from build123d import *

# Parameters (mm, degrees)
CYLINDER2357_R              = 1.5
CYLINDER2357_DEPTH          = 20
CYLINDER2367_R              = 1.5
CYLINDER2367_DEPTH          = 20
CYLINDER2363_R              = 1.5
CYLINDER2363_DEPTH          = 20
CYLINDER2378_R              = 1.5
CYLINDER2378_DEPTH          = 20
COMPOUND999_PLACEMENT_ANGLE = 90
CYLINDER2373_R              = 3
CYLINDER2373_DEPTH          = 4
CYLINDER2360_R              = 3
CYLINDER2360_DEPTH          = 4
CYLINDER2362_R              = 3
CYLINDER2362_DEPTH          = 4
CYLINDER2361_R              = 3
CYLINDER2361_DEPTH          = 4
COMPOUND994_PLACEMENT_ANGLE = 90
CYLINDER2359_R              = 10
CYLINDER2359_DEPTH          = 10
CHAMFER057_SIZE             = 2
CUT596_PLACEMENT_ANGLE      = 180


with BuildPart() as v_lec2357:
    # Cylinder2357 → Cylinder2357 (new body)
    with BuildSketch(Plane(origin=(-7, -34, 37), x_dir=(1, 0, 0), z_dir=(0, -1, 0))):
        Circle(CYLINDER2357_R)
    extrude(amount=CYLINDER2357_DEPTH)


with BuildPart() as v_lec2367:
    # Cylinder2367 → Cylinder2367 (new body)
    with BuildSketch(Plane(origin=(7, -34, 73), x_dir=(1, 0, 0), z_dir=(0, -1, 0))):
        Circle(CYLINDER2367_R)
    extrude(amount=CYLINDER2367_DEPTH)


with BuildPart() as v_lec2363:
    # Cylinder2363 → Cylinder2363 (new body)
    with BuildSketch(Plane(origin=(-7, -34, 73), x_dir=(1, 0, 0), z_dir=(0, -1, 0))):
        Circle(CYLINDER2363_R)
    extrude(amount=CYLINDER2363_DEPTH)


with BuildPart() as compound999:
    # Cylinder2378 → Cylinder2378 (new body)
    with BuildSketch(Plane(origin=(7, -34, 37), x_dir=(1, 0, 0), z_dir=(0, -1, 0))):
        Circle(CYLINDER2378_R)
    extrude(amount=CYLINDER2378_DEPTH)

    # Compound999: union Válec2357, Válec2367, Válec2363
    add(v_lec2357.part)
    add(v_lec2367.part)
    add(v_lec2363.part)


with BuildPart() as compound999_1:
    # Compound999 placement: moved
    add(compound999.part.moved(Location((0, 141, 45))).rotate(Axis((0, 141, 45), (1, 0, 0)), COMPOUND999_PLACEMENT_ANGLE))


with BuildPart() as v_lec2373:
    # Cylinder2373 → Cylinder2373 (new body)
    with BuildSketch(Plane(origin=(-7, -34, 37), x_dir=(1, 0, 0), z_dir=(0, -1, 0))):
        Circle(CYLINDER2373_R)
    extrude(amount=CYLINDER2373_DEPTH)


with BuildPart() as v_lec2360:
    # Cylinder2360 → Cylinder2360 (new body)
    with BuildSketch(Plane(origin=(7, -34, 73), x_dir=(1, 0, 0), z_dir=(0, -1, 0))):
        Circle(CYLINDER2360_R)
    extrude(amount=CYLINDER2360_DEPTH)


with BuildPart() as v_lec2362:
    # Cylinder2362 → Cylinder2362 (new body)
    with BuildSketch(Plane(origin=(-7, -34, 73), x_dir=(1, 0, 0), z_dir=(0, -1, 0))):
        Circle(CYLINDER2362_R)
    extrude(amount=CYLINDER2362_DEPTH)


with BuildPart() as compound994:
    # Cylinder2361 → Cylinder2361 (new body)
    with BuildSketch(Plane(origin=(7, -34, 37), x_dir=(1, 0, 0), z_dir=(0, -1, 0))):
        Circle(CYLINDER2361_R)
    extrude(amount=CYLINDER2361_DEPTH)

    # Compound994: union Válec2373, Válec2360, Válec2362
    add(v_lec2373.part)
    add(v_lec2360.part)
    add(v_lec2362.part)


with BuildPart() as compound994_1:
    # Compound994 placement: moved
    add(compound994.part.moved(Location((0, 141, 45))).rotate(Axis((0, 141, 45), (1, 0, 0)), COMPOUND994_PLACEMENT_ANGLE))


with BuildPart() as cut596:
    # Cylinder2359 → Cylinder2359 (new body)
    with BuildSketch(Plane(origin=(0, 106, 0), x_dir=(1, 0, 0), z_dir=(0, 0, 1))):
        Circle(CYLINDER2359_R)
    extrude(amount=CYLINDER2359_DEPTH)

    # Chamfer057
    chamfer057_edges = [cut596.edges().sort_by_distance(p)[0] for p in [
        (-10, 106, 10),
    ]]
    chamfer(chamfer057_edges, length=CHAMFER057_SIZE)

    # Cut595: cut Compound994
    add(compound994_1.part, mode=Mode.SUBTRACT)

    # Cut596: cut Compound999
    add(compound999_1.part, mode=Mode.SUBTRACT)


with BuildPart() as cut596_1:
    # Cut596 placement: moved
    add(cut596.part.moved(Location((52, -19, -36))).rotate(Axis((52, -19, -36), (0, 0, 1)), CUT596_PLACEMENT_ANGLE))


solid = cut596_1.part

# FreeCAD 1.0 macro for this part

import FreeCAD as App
import Part
import Sketcher

V = App.Vector


def edges_at(feature, points):
    """Names of the edges that pass closest to the given points."""
    edges = feature.Shape.Edges
    near = lambda p: min(range(len(edges)), key=lambda i: edges[i].distToShape(Part.Vertex(*p))[0])
    return sorted({f"Edge{near(p) + 1}" for p in points})

doc = App.newDocument("Part")
body = doc.addObject("PartDesign::Body", "Body")

sketch1 = body.newObject("Sketcher::SketchObject", "Sketch")
sketch1.AttachmentSupport = (doc.getObject("XZ_Plane"), [""])
sketch1.MapMode = "FlatFace"
sketch1.AttachmentOffset = App.Placement(V(0, 0, 34), App.Rotation())
sketch1.addGeometry(Part.Circle(V(-7, 37, 0), V(0, 0, 1), 1.5), False)
sketch1.addConstraint(Sketcher.Constraint("Diameter", 0, 3.0))
sketch1.addConstraint(Sketcher.Constraint("DistanceX", 0, 3, -1, 1, 7.0))
sketch1.addConstraint(Sketcher.Constraint("DistanceY", -1, 1, 0, 3, 37.0))
pad1 = body.newObject("PartDesign::Pad", "Pad")
pad1.Profile = sketch1
pad1.Length = 20
body2 = doc.addObject("PartDesign::Body", "Body001")

sketch2 = body2.newObject("Sketcher::SketchObject", "Sketch001")
sketch2.AttachmentSupport = (doc.getObject("XZ_Plane001"), [""])
sketch2.MapMode = "FlatFace"
sketch2.AttachmentOffset = App.Placement(V(0, 0, 34), App.Rotation())
sketch2.addGeometry(Part.Circle(V(7, 73, 0), V(0, 0, 1), 1.5), False)
sketch2.addConstraint(Sketcher.Constraint("Diameter", 0, 3.0))
sketch2.addConstraint(Sketcher.Constraint("DistanceX", -1, 1, 0, 3, 7.0))
sketch2.addConstraint(Sketcher.Constraint("DistanceY", -1, 1, 0, 3, 73.0))
pad2 = body2.newObject("PartDesign::Pad", "Pad001")
pad2.Profile = sketch2
pad2.Length = 20
body3 = doc.addObject("PartDesign::Body", "Body002")

sketch3 = body3.newObject("Sketcher::SketchObject", "Sketch002")
sketch3.AttachmentSupport = (doc.getObject("XZ_Plane002"), [""])
sketch3.MapMode = "FlatFace"
sketch3.AttachmentOffset = App.Placement(V(0, 0, 34), App.Rotation())
sketch3.addGeometry(Part.Circle(V(-7, 73, 0), V(0, 0, 1), 1.5), False)
sketch3.addConstraint(Sketcher.Constraint("Diameter", 0, 3.0))
sketch3.addConstraint(Sketcher.Constraint("DistanceX", 0, 3, -1, 1, 7.0))
sketch3.addConstraint(Sketcher.Constraint("DistanceY", -1, 1, 0, 3, 73.0))
pad3 = body3.newObject("PartDesign::Pad", "Pad002")
pad3.Profile = sketch3
pad3.Length = 20
body4 = doc.addObject("PartDesign::Body", "Body003")
body4.AllowCompound = True

sketch4 = body4.newObject("Sketcher::SketchObject", "Sketch003")
sketch4.AttachmentSupport = (doc.getObject("XZ_Plane003"), [""])
sketch4.MapMode = "FlatFace"
sketch4.AttachmentOffset = App.Placement(V(0, 0, 34), App.Rotation())
sketch4.addGeometry(Part.Circle(V(7, 37, 0), V(0, 0, 1), 1.5), False)
sketch4.addConstraint(Sketcher.Constraint("Diameter", 0, 3.0))
sketch4.addConstraint(Sketcher.Constraint("DistanceX", -1, 1, 0, 3, 7.0))
sketch4.addConstraint(Sketcher.Constraint("DistanceY", -1, 1, 0, 3, 37.0))
pad4 = body4.newObject("PartDesign::Pad", "Pad003")
pad4.Profile = sketch4
pad4.Length = 20
doc.recompute()

boolean = body4.newObject("PartDesign::Boolean", "Boolean")
boolean.Type = "Fuse"
boolean.addObjects([body])
doc.recompute()

boolean2 = body4.newObject("PartDesign::Boolean", "Boolean001")
boolean2.Type = "Fuse"
boolean2.addObjects([body2])
doc.recompute()

boolean3 = body4.newObject("PartDesign::Boolean", "Boolean002")
boolean3.Type = "Fuse"
boolean3.addObjects([body3])
body5 = doc.addObject("PartDesign::Body", "Body004")
body5.AllowCompound = True
doc.recompute()

body4.Placement = App.Placement(V(0, 141, 45), App.Rotation(V(1, 0, 0), 90))
boolean4 = body5.newObject("PartDesign::Boolean", "Boolean003")
boolean4.Type = "Fuse"
boolean4.addObjects([body4])
body6 = doc.addObject("PartDesign::Body", "Body005")

sketch5 = body6.newObject("Sketcher::SketchObject", "Sketch004")
sketch5.AttachmentSupport = (doc.getObject("XZ_Plane005"), [""])
sketch5.MapMode = "FlatFace"
sketch5.AttachmentOffset = App.Placement(V(0, 0, 34), App.Rotation())
sketch5.addGeometry(Part.Circle(V(-7, 37, 0), V(0, 0, 1), 3), False)
sketch5.addConstraint(Sketcher.Constraint("Diameter", 0, 6.0))
sketch5.addConstraint(Sketcher.Constraint("DistanceX", 0, 3, -1, 1, 7.0))
sketch5.addConstraint(Sketcher.Constraint("DistanceY", -1, 1, 0, 3, 37.0))
pad5 = body6.newObject("PartDesign::Pad", "Pad004")
pad5.Profile = sketch5
pad5.Length = 4
body7 = doc.addObject("PartDesign::Body", "Body006")

sketch6 = body7.newObject("Sketcher::SketchObject", "Sketch005")
sketch6.AttachmentSupport = (doc.getObject("XZ_Plane006"), [""])
sketch6.MapMode = "FlatFace"
sketch6.AttachmentOffset = App.Placement(V(0, 0, 34), App.Rotation())
sketch6.addGeometry(Part.Circle(V(7, 73, 0), V(0, 0, 1), 3), False)
sketch6.addConstraint(Sketcher.Constraint("Diameter", 0, 6.0))
sketch6.addConstraint(Sketcher.Constraint("DistanceX", -1, 1, 0, 3, 7.0))
sketch6.addConstraint(Sketcher.Constraint("DistanceY", -1, 1, 0, 3, 73.0))
pad6 = body7.newObject("PartDesign::Pad", "Pad005")
pad6.Profile = sketch6
pad6.Length = 4
body8 = doc.addObject("PartDesign::Body", "Body007")

sketch7 = body8.newObject("Sketcher::SketchObject", "Sketch006")
sketch7.AttachmentSupport = (doc.getObject("XZ_Plane007"), [""])
sketch7.MapMode = "FlatFace"
sketch7.AttachmentOffset = App.Placement(V(0, 0, 34), App.Rotation())
sketch7.addGeometry(Part.Circle(V(-7, 73, 0), V(0, 0, 1), 3), False)
sketch7.addConstraint(Sketcher.Constraint("Diameter", 0, 6.0))
sketch7.addConstraint(Sketcher.Constraint("DistanceX", 0, 3, -1, 1, 7.0))
sketch7.addConstraint(Sketcher.Constraint("DistanceY", -1, 1, 0, 3, 73.0))
pad7 = body8.newObject("PartDesign::Pad", "Pad006")
pad7.Profile = sketch7
pad7.Length = 4
body9 = doc.addObject("PartDesign::Body", "Body008")
body9.AllowCompound = True

sketch8 = body9.newObject("Sketcher::SketchObject", "Sketch007")
sketch8.AttachmentSupport = (doc.getObject("XZ_Plane008"), [""])
sketch8.MapMode = "FlatFace"
sketch8.AttachmentOffset = App.Placement(V(0, 0, 34), App.Rotation())
sketch8.addGeometry(Part.Circle(V(7, 37, 0), V(0, 0, 1), 3), False)
sketch8.addConstraint(Sketcher.Constraint("Diameter", 0, 6.0))
sketch8.addConstraint(Sketcher.Constraint("DistanceX", -1, 1, 0, 3, 7.0))
sketch8.addConstraint(Sketcher.Constraint("DistanceY", -1, 1, 0, 3, 37.0))
pad8 = body9.newObject("PartDesign::Pad", "Pad007")
pad8.Profile = sketch8
pad8.Length = 4
doc.recompute()

boolean5 = body9.newObject("PartDesign::Boolean", "Boolean004")
boolean5.Type = "Fuse"
boolean5.addObjects([body6])
doc.recompute()

boolean6 = body9.newObject("PartDesign::Boolean", "Boolean005")
boolean6.Type = "Fuse"
boolean6.addObjects([body7])
doc.recompute()

boolean7 = body9.newObject("PartDesign::Boolean", "Boolean006")
boolean7.Type = "Fuse"
boolean7.addObjects([body8])
body10 = doc.addObject("PartDesign::Body", "Body009")
body10.AllowCompound = True
doc.recompute()

body9.Placement = App.Placement(V(0, 141, 45), App.Rotation(V(1, 0, 0), 90))
boolean8 = body10.newObject("PartDesign::Boolean", "Boolean007")
boolean8.Type = "Fuse"
boolean8.addObjects([body9])
body11 = doc.addObject("PartDesign::Body", "Body010")

sketch9 = body11.newObject("Sketcher::SketchObject", "Sketch008")
sketch9.AttachmentSupport = (doc.getObject("XY_Plane010"), [""])
sketch9.MapMode = "FlatFace"
sketch9.addGeometry(Part.Circle(V(0, 106, 0), V(0, 0, 1), 10), False)
sketch9.addConstraint(Sketcher.Constraint("PointOnObject", 0, 3, -2))
sketch9.addConstraint(Sketcher.Constraint("Diameter", 0, 20.0))
sketch9.addConstraint(Sketcher.Constraint("DistanceY", -1, 1, 0, 3, 106.0))
pad9 = body11.newObject("PartDesign::Pad", "Pad008")
pad9.Profile = sketch9
pad9.Length = 10
doc.recompute()

chamfer = body11.newObject("PartDesign::Chamfer", "Chamfer")
chamfer.Base = (pad9, edges_at(pad9, [(-10, 106, 10)]))
chamfer.Size = 2
doc.recompute()

boolean9 = body11.newObject("PartDesign::Boolean", "Boolean008")
boolean9.Type = "Cut"
boolean9.addObjects([body10])
doc.recompute()

boolean10 = body11.newObject("PartDesign::Boolean", "Boolean009")
boolean10.Type = "Cut"
boolean10.addObjects([body5])
body12 = doc.addObject("PartDesign::Body", "Body011")
doc.recompute()

body11.Placement = App.Placement(V(52, -19, -36), App.Rotation(V(0, 0, 1), 180))
boolean11 = body12.newObject("PartDesign::Boolean", "Boolean010")
boolean11.Type = "Fuse"
boolean11.addObjects([body11])

doc.recompute()
